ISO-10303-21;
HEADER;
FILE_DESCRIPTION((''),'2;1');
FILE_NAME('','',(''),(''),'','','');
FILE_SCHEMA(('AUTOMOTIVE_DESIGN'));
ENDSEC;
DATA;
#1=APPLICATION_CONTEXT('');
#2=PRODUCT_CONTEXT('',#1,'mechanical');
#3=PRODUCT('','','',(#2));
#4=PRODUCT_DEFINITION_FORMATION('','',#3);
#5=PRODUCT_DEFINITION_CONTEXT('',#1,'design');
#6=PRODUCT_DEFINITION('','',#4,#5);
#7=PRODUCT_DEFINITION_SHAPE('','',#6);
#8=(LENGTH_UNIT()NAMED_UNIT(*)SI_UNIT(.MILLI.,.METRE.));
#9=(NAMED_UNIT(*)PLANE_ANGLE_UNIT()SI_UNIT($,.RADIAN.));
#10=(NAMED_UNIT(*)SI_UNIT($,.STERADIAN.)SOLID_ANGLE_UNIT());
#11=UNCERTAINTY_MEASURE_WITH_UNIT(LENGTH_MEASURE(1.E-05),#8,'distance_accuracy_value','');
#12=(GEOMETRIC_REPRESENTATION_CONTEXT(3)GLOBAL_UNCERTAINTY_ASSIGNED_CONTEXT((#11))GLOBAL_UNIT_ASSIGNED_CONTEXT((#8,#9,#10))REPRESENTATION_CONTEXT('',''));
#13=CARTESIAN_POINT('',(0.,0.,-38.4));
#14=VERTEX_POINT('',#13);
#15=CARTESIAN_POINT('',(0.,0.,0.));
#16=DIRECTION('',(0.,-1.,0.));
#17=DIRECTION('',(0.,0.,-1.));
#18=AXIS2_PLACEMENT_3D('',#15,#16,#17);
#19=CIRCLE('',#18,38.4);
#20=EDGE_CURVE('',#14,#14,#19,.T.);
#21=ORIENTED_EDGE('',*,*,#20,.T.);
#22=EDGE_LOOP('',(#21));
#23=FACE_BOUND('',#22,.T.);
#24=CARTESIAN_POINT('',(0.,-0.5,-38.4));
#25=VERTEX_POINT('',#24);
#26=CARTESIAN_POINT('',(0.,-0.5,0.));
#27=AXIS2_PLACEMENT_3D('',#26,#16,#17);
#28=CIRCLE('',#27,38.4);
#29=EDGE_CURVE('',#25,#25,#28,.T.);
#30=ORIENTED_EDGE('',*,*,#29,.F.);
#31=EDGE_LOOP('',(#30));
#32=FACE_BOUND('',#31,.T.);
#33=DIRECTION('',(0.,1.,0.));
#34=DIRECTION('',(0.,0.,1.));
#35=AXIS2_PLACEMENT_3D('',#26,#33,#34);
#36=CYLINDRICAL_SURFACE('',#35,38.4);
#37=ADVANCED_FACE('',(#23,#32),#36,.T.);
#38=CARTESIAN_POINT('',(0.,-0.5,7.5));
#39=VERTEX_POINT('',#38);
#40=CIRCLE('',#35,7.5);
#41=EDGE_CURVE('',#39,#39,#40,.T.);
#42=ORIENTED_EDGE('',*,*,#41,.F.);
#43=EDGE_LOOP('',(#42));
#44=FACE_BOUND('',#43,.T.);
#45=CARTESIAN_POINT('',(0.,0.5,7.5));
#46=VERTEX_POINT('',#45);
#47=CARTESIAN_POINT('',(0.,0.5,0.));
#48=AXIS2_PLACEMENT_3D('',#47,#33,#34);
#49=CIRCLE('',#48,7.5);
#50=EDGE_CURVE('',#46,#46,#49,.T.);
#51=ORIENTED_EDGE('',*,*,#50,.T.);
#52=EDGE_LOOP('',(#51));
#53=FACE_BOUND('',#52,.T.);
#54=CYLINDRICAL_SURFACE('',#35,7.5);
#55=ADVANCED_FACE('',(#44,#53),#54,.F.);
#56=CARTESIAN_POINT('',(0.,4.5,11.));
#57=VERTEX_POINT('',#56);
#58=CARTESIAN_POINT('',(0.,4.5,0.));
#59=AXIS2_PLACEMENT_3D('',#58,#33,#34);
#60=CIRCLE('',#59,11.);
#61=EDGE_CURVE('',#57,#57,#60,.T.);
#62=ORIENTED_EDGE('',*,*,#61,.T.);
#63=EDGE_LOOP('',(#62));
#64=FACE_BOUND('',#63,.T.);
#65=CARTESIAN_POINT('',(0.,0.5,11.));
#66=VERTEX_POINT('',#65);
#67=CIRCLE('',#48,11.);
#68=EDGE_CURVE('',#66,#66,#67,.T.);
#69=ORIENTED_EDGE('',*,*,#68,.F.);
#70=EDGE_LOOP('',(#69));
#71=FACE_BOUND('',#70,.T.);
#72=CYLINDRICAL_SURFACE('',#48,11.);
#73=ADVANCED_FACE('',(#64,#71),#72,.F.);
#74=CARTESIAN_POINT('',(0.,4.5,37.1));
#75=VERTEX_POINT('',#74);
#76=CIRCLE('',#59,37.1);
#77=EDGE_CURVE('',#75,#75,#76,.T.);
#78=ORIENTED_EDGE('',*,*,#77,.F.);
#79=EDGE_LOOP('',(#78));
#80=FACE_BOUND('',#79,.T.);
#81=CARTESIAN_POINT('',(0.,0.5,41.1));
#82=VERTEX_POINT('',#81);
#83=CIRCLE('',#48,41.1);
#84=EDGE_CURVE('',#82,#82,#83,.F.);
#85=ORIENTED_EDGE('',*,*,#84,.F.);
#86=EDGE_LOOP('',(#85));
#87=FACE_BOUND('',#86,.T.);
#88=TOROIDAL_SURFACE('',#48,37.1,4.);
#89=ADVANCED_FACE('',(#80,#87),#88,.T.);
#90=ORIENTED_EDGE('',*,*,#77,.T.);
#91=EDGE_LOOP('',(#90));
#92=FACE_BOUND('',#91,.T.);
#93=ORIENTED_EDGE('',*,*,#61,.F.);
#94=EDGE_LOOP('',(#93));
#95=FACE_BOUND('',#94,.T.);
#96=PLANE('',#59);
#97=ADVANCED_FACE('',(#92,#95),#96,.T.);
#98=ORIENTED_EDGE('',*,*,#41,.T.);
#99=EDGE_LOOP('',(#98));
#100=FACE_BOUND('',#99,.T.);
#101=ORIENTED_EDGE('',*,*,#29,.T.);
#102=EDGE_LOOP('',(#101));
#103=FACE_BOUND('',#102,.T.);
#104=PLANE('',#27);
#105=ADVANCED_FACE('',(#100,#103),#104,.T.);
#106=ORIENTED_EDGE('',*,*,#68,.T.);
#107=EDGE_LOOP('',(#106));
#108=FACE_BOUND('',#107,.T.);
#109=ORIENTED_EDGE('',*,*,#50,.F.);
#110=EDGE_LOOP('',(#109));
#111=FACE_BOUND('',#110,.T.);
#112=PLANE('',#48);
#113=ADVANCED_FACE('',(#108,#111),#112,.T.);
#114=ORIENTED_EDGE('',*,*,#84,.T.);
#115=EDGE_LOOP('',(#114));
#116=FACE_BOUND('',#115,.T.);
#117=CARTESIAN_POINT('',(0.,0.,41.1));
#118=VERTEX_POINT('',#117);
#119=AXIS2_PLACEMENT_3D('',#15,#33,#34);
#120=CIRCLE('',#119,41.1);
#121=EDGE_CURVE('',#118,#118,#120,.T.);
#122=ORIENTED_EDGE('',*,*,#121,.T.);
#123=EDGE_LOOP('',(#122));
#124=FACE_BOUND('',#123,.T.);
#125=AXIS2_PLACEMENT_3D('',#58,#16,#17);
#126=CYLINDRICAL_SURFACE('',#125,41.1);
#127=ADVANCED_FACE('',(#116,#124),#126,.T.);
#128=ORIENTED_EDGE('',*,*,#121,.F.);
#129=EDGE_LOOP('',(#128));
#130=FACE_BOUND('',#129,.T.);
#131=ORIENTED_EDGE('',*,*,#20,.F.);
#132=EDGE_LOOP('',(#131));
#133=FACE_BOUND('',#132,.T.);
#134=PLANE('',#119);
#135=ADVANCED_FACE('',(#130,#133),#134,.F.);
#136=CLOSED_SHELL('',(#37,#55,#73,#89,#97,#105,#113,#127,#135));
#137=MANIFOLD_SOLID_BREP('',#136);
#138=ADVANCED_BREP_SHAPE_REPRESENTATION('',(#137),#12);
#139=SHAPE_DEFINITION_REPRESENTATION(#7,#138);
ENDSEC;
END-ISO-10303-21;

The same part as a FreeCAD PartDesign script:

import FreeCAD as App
import Part
import Sketcher
from FreeCAD import Vector
Q = App.Units.Quantity


def edges_at(feature, points):
    """Names of the edges that pass closest to the given points."""
    edges = feature.Shape.Edges
    near = lambda p: min(range(len(edges)), key=lambda i: edges[i].distToShape(Part.Vertex(*p))[0])
    return sorted({f"Edge{near(p) + 1}" for p in points})

doc = App.newDocument("Part")
body = doc.addObject("PartDesign::Body", "Body")

# Sketch on XZ plane
sketch1 = body.newObject("Sketcher::SketchObject", "Sketch")
sketch1.AttachmentSupport = (doc.getObject("XZ_Plane"), [""])
sketch1.MapMode = "FlatFace"
sketch1.addGeometry(Part.Circle(Vector(0, 0, 0), Vector(0, 0, 1), 41.1), False)
sketch1.addConstraint([
    Sketcher.Constraint("Coincident", 0, 3, -1, 1),
    Sketcher.Constraint("Diameter", 0, Q("82.2 mm")),
])
pad1 = body.newObject("PartDesign::Pad", "Pad")
pad1.Profile = sketch1
pad1.Length = 4.5
pad1.Reversed = True

# Sketch on XZ plane
sketch2 = body.newObject("Sketcher::SketchObject", "Sketch001")
sketch2.AttachmentSupport = (doc.getObject("XZ_Plane"), [""])
sketch2.MapMode = "FlatFace"
sketch2.addGeometry(Part.Circle(Vector(0, 0, 0), Vector(0, 0, 1), 38.4), False)
sketch2.addConstraint([
    Sketcher.Constraint("Coincident", 0, 3, -1, 1),
    Sketcher.Constraint("Diameter", 0, Q("76.8 mm")),
])
pad2 = body.newObject("PartDesign::Pad", "Pad001")
pad2.Profile = sketch2
pad2.Length = 0.5

# Sketch on XZ plane
sketch3 = body.newObject("Sketcher::SketchObject", "Sketch002")
sketch3.AttachmentSupport = (doc.getObject("XZ_Plane"), [""])
sketch3.MapMode = "FlatFace"
sketch3.AttachmentOffset = App.Placement(Vector(0, 0, -4.5), App.Rotation())
sketch3.addGeometry(Part.Circle(Vector(0, 0, 0), Vector(0, 0, 1), 11), False)
sketch3.addConstraint([
    Sketcher.Constraint("Coincident", 0, 3, -1, 1),
    Sketcher.Constraint("Diameter", 0, Q("22 mm")),
])
pocket1 = body.newObject("PartDesign::Pocket", "Pocket")
pocket1.Profile = sketch3
pocket1.Length = 4
pocket1.Reversed = True

# Sketch on XZ plane
sketch4 = body.newObject("Sketcher::SketchObject", "Sketch003")
sketch4.AttachmentSupport = (doc.getObject("XZ_Plane"), [""])
sketch4.MapMode = "FlatFace"
sketch4.AttachmentOffset = App.Placement(Vector(0, 0, -0.5), App.Rotation())
sketch4.addGeometry(Part.Circle(Vector(0, 0, 0), Vector(0, 0, 1), 7.5), False)
sketch4.addConstraint([
    Sketcher.Constraint("Coincident", 0, 3, -1, 1),
    Sketcher.Constraint("Diameter", 0, Q("15 mm")),
])
pocket2 = body.newObject("PartDesign::Pocket", "Pocket001")
pocket2.Profile = sketch4
pocket2.Type = "ThroughAll"
pocket2.Reversed = True
doc.recompute()

fillet = body.newObject("PartDesign::Fillet", "Fillet")
fillet.Base = (pocket2, edges_at(pocket2, [(0, 4.5, -41.1)]))
fillet.Radius = 4

doc.recompute()
